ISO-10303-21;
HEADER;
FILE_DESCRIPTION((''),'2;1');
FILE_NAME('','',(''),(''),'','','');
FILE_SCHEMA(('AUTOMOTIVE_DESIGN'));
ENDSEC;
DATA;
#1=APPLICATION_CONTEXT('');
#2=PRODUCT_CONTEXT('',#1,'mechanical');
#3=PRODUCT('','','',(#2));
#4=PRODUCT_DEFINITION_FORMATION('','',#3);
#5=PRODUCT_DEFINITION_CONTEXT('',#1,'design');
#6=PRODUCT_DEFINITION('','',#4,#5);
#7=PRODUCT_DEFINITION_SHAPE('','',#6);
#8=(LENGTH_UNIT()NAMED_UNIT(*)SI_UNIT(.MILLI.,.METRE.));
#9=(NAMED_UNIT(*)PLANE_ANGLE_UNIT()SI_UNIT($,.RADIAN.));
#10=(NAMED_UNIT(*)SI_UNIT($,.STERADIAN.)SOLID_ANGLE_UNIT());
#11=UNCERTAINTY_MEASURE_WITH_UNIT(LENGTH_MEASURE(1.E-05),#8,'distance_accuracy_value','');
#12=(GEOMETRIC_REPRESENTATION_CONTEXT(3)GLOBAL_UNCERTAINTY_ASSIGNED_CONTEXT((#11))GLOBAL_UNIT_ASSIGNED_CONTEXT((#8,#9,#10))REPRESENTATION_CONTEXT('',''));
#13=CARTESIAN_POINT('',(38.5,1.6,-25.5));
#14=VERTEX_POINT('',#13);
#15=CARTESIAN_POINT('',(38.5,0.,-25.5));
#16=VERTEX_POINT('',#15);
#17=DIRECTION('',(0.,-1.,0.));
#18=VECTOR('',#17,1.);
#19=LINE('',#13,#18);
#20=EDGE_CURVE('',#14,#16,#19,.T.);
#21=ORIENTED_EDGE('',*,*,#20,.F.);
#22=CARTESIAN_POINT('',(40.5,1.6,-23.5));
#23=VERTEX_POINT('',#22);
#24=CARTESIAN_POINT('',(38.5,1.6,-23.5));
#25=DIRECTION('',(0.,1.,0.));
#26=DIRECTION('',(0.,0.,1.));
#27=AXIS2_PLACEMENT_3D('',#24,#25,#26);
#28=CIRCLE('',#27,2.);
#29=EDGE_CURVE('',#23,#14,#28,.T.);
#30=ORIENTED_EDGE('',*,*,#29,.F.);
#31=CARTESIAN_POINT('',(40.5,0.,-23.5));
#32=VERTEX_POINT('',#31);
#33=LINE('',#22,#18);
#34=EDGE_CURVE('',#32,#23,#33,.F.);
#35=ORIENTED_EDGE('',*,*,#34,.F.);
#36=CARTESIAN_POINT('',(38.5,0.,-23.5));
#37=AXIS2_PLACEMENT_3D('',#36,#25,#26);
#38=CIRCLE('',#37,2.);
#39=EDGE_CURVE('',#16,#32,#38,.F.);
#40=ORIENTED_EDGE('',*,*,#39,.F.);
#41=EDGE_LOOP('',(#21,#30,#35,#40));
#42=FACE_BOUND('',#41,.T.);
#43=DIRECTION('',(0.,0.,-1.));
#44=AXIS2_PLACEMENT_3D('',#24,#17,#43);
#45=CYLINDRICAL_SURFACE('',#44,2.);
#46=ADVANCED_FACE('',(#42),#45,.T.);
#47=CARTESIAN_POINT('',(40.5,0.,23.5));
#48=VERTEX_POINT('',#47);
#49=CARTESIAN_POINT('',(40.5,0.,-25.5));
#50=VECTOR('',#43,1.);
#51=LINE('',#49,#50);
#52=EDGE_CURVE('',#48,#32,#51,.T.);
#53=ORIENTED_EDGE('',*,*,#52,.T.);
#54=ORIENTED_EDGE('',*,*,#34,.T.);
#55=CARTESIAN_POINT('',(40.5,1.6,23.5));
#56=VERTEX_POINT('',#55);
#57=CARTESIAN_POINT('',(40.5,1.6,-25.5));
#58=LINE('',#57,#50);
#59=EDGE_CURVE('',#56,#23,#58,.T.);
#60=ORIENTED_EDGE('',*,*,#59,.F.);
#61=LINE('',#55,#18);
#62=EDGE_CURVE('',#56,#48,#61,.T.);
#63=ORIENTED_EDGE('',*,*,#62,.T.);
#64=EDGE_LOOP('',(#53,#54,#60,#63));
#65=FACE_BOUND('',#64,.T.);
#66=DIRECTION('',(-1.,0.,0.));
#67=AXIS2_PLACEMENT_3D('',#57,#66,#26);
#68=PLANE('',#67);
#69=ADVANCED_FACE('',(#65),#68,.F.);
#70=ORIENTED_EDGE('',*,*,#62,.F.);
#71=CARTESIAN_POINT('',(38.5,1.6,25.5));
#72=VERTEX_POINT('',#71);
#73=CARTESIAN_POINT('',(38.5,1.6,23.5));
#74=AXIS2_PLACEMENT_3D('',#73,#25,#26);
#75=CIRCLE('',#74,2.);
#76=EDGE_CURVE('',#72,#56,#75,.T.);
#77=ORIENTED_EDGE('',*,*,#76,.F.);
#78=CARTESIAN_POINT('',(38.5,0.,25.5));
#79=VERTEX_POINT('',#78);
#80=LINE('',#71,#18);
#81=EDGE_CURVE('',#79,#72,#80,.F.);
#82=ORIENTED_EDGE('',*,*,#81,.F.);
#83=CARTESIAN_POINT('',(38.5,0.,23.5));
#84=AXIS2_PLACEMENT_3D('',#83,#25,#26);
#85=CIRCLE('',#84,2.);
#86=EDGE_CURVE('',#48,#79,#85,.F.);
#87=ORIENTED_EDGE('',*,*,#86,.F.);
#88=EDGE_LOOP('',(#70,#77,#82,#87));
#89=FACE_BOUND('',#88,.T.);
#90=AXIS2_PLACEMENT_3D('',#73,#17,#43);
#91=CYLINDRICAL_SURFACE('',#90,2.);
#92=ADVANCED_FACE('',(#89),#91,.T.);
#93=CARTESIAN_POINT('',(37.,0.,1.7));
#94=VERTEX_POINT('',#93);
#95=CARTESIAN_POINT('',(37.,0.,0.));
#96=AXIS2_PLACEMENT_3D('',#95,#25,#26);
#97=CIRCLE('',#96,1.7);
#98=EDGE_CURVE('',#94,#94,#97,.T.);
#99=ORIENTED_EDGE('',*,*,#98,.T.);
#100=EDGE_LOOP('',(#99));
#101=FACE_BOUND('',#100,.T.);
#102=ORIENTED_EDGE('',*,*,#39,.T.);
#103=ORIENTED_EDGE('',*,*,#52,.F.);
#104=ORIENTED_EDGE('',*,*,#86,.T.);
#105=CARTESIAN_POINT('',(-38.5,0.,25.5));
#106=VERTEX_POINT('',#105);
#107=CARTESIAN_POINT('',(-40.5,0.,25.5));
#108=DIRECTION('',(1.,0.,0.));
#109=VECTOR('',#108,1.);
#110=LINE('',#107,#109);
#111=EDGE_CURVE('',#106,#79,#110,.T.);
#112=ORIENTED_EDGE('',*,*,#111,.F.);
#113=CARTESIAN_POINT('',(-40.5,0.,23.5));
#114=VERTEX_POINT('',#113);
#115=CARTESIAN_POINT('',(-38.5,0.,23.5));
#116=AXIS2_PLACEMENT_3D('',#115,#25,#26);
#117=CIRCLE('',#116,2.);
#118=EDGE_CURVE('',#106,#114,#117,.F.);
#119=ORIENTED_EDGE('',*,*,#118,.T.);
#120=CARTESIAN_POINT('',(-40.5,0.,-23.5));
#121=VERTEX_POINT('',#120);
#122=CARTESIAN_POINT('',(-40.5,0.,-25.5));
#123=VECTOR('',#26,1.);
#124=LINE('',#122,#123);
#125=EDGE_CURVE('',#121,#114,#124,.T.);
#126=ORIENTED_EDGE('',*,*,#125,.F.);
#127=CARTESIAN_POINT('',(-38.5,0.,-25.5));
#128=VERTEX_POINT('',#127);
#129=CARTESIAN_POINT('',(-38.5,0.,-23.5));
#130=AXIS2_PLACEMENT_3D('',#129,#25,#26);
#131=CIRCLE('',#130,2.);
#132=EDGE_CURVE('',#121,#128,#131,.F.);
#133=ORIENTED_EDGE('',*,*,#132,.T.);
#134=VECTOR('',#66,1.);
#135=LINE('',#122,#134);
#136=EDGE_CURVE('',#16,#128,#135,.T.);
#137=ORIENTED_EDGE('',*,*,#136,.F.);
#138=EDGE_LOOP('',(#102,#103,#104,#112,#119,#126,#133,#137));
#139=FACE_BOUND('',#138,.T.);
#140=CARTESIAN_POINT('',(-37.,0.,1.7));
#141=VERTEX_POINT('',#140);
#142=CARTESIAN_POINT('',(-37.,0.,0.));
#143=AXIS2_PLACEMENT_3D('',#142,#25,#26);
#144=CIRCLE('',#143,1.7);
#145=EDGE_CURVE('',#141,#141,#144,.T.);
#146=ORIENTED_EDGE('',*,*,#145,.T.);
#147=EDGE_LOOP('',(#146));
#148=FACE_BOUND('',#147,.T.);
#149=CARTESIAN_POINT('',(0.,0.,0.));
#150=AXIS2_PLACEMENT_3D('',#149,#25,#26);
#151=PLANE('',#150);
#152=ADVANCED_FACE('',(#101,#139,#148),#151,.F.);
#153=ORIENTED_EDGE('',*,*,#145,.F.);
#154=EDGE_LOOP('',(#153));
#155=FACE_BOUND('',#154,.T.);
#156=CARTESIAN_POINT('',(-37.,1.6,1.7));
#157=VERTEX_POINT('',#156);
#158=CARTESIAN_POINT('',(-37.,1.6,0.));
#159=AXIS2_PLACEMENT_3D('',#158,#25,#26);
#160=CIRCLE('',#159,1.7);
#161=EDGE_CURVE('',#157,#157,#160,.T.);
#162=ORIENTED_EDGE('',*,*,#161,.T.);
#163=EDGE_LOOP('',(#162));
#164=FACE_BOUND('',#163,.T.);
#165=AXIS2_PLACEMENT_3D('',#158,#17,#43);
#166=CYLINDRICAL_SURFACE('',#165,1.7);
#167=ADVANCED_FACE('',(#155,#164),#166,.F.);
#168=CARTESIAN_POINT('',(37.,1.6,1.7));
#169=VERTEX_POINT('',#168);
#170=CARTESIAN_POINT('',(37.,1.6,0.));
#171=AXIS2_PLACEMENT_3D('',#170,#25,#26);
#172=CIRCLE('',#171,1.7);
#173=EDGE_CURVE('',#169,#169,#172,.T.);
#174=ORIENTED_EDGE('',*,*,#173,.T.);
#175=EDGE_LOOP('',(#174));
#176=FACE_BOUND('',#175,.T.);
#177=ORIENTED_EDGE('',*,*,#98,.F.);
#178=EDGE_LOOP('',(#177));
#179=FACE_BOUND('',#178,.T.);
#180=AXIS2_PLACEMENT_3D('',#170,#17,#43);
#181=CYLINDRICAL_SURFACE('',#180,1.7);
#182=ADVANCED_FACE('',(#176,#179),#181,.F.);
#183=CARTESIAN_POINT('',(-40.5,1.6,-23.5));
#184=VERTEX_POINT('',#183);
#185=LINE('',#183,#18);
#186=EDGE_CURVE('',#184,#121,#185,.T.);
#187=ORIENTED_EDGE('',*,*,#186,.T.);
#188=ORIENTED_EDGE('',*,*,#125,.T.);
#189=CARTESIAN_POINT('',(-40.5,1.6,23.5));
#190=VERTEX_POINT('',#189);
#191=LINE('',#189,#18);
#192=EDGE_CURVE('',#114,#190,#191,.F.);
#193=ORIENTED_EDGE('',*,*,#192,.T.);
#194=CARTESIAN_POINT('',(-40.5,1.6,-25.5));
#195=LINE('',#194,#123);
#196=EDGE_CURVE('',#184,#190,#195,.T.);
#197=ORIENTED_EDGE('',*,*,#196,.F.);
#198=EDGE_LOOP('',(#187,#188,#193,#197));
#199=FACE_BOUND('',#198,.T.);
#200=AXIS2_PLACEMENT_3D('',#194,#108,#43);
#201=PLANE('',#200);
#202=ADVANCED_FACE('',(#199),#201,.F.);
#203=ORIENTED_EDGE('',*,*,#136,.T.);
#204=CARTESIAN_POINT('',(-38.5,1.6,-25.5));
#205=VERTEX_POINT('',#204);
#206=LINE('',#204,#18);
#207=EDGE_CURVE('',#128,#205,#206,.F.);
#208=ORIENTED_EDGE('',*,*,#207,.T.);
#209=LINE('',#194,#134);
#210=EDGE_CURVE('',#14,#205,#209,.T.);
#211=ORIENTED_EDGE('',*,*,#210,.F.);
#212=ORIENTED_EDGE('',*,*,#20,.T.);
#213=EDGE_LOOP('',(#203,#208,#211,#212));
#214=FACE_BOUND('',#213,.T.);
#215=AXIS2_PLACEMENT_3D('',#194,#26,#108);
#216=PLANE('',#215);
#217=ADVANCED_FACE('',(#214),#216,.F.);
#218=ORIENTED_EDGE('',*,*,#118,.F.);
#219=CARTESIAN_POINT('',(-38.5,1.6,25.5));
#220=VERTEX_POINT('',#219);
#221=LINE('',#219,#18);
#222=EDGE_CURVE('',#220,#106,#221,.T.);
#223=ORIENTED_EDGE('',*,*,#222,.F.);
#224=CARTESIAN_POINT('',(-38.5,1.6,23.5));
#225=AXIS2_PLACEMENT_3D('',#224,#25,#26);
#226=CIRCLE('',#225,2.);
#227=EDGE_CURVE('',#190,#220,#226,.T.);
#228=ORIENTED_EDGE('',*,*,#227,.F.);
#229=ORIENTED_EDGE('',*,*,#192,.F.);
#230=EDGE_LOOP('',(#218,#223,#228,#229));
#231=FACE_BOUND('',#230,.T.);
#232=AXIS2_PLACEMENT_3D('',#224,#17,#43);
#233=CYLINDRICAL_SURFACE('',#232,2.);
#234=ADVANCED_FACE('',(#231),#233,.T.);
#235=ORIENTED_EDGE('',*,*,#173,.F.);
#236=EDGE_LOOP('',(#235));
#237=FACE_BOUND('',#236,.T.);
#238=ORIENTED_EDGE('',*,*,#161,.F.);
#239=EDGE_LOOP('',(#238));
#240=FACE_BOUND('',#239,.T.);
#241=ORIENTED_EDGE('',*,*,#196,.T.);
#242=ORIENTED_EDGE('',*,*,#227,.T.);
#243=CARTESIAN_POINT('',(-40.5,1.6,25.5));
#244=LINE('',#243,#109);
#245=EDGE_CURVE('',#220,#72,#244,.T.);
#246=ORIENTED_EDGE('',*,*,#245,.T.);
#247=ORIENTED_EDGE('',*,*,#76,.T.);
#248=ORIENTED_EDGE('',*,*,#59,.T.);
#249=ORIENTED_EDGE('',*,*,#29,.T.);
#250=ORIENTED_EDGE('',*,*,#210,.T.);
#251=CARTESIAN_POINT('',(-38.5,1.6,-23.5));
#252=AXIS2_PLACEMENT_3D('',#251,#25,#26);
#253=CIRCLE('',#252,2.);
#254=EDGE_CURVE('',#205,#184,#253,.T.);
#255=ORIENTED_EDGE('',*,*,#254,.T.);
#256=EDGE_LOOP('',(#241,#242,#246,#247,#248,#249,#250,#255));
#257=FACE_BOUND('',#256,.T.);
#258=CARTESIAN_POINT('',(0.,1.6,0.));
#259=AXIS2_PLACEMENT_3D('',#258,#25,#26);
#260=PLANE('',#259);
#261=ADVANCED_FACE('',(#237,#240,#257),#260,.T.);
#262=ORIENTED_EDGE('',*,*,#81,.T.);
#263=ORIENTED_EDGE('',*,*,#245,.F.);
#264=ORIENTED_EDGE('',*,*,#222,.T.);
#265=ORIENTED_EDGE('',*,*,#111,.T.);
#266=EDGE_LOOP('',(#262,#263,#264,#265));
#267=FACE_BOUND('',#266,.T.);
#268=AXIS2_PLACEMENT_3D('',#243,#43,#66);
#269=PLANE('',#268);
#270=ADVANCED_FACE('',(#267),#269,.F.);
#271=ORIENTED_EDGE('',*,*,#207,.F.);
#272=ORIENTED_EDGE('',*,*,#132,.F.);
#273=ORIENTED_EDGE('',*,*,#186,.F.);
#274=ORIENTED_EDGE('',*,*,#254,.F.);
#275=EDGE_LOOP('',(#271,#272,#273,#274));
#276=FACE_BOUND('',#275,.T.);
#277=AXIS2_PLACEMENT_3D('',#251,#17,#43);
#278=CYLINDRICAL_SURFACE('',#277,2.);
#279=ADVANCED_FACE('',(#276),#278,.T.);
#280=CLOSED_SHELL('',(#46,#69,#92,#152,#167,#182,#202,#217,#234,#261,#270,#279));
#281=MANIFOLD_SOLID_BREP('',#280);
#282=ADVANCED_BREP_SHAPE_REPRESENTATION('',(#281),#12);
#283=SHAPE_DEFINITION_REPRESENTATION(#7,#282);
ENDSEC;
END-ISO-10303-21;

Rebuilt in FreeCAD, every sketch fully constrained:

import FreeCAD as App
import Part
import Sketcher
from FreeCAD import Vector
Q = App.Units.Quantity


def edges_at(feature, points):
    """Names of the edges that pass closest to the given points."""
    edges = feature.Shape.Edges
    near = lambda p: min(range(len(edges)), key=lambda i: edges[i].distToShape(Part.Vertex(*p))[0])
    return sorted({f"Edge{near(p) + 1}" for p in points})

doc = App.newDocument("Part")
body = doc.addObject("PartDesign::Body", "Body")

# Sketch on XZ plane
sketch1 = body.newObject("Sketcher::SketchObject", "Sketch")
sketch1.AttachmentSupport = (doc.getObject("XZ_Plane"), [""])
sketch1.MapMode = "FlatFace"
sketch1.addGeometry(Part.LineSegment(Vector(-40.5, -25.5, 0), Vector(-40.5, 25.5, 0)), False)
sketch1.addGeometry(Part.LineSegment(Vector(-40.5, 25.5, 0), Vector(40.5, 25.5, 0)), False)
sketch1.addGeometry(Part.LineSegment(Vector(40.5, 25.5, 0), Vector(40.5, -25.5, 0)), False)
sketch1.addGeometry(Part.LineSegment(Vector(40.5, -25.5, 0), Vector(-40.5, -25.5, 0)), False)
sketch1.addGeometry(Part.Circle(Vector(-37, 0, 0), Vector(0, 0, 1), 1.7), False)
sketch1.addGeometry(Part.Circle(Vector(37, 0, 0), Vector(0, 0, 1), 1.7), False)
sketch1.addConstraint(Sketcher.Constraint("Coincident", 0, 2, 1, 1))
sketch1.addConstraint(Sketcher.Constraint("Coincident", 1, 2, 2, 1))
sketch1.addConstraint(Sketcher.Constraint("Coincident", 2, 2, 3, 1))
sketch1.addConstraint(Sketcher.Constraint("Coincident", 3, 2, 0, 1))
sketch1.addConstraint(Sketcher.Constraint("Vertical", 0))
sketch1.addConstraint(Sketcher.Constraint("Horizontal", 1))
sketch1.addConstraint(Sketcher.Constraint("Vertical", 2))
sketch1.addConstraint(Sketcher.Constraint("Horizontal", 3))
sketch1.addConstraint(Sketcher.Constraint("Equal", 4, 5))
sketch1.addConstraint(Sketcher.Constraint("Symmetric", 4, 3, 5, 3, -1, 1))
sketch1.addConstraint(Sketcher.Constraint("Symmetric", 0, 2, 2, 2, -1, 1))
sketch1.addConstraint(Sketcher.Constraint("PointOnObject", 4, 3, -1))
sketch1.addConstraint(Sketcher.Constraint("Diameter", 4, Q("3.4 mm")))
sketch1.addConstraint(Sketcher.Constraint("DistanceX", 1, 1, 1, 2, Q("81 mm")))
sketch1.addConstraint(Sketcher.Constraint("DistanceY", 0, 1, 0, 2, Q("51 mm")))
sketch1.addConstraint(Sketcher.Constraint("DistanceX", 4, 3, -1, 1, Q("37 mm")))
pad1 = body.newObject("PartDesign::Pad", "Pad")
pad1.Profile = sketch1
pad1.Length = 1.6
pad1.Reversed = True
doc.recompute()

fillet = body.newObject("PartDesign::Fillet", "Fillet")
fillet.Base = (pad1, edges_at(pad1, [
    (40.5, 0.8, 25.5),
    (-40.5, 0.8, 25.5),
    (-40.5, 0.8, -25.5),
    (40.5, 0.8, -25.5),
]))
fillet.Radius = 2

doc.recompute()
